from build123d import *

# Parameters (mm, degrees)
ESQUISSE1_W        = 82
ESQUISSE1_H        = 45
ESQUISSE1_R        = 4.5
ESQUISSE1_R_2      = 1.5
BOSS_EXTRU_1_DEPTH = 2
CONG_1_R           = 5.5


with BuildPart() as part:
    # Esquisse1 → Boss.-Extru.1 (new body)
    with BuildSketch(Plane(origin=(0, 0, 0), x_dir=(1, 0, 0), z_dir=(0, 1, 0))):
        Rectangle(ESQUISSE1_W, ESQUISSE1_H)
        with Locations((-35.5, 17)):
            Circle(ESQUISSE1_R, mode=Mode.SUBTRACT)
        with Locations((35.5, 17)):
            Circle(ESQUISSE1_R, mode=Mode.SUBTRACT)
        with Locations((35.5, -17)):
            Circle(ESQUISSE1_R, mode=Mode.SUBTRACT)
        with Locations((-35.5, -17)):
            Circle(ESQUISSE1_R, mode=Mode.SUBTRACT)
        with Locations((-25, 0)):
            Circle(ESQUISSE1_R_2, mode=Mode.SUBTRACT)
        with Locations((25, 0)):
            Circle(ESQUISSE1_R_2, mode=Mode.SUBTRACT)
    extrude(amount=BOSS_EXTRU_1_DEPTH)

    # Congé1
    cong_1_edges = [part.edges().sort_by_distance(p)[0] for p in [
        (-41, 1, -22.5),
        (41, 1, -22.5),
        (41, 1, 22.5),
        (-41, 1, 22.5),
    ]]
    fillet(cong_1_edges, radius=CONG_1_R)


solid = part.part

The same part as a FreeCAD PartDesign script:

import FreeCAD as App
import Part
import Sketcher

V = App.Vector
Q = App.Units.Quantity


def edges_at(feature, points):
    """Names of the edges that pass closest to the given points."""
    edges = feature.Shape.Edges
    near = lambda p: min(range(len(edges)), key=lambda i: edges[i].distToShape(Part.Vertex(*p))[0])
    return sorted({f"Edge{near(p) + 1}" for p in points})

doc = App.newDocument("Part")
body = doc.addObject("PartDesign::Body", "Body")

sketch1 = doc.addObject("Sketcher::SketchObject", "Sketch")
body.addObject(sketch1)
sketch1.AttachmentSupport = (doc.XZ_Plane, [""])
sketch1.MapMode = "FlatFace"
sketch1.addGeometry([
    Part.LineSegment(V(-41, -22.5, 0), V(-41, 22.5, 0)),
    Part.LineSegment(V(-41, 22.5, 0), V(41, 22.5, 0)),
    Part.LineSegment(V(41, 22.5, 0), V(41, -22.5, 0)),
    Part.LineSegment(V(41, -22.5, 0), V(-41, -22.5, 0)),
    Part.Circle(V(-35.5, 17, 0), V(0, 0, 1), 4.5),
    Part.Circle(V(35.5, 17, 0), V(0, 0, 1), 4.5),
    Part.Circle(V(-25, 0, 0), V(0, 0, 1), 1.5),
    Part.Circle(V(-35.5, -17, 0), V(0, 0, 1), 4.5),
    Part.Circle(V(25, 0, 0), V(0, 0, 1), 1.5),
    Part.Circle(V(35.5, -17, 0), V(0, 0, 1), 4.5),
], False)
sketch1.addConstraint([
    Sketcher.Constraint("Coincident", 0, 2, 1, 1),
    Sketcher.Constraint("Coincident", 1, 2, 2, 1),
    Sketcher.Constraint("Coincident", 2, 2, 3, 1),
    Sketcher.Constraint("Coincident", 3, 2, 0, 1),
    Sketcher.Constraint("Vertical", 0),
    Sketcher.Constraint("Horizontal", 1),
    Sketcher.Constraint("Vertical", 2),
    Sketcher.Constraint("Horizontal", 3),
    Sketcher.Constraint("Equal", 4, 5),
    Sketcher.Constraint("Equal", 5, 7),
    Sketcher.Constraint("Equal", 6, 8),
    Sketcher.Constraint("Equal", 7, 9),
    Sketcher.Constraint("Symmetric", 5, 3, 7, 3, -1, 1),
    Sketcher.Constraint("Symmetric", 6, 3, 8, 3, -1, 1),
    Sketcher.Constraint("Symmetric", 4, 3, 9, 3, -1, 1),
    Sketcher.Constraint("Symmetric", 0, 2, 2, 2, -1, 1),
    Sketcher.Constraint("Symmetric", 4, 3, 5, 3, -2),
    Sketcher.Constraint("PointOnObject", 6, 3, -1),
    Sketcher.Constraint("Diameter", 4, Q("9 mm")),
    Sketcher.Constraint("Diameter", 6, Q("3 mm")),
    Sketcher.Constraint("DistanceX", 1, 1, 1, 2, Q("82 mm")),
    Sketcher.Constraint("DistanceY", 0, 1, 0, 2, Q("45 mm")),
    Sketcher.Constraint("DistanceY", -1, 1, 4, 3, Q("17 mm")),
    Sketcher.Constraint("DistanceX", 6, 3, -1, 1, Q("25 mm")),
    Sketcher.Constraint("DistanceX", 4, 3, 5, 3, Q("71 mm")),
])
pad1 = doc.addObject("PartDesign::Pad", "Pad")
body.addObject(pad1)
pad1.Profile = sketch1
pad1.Length = 2
pad1.Reversed = True
doc.recompute()

fillet = doc.addObject("PartDesign::Fillet", "Fillet")
body.addObject(fillet)
fillet.Base = (pad1, edges_at(pad1, [
    (-41, 1, -22.5),
    (41, 1, -22.5),
    (41, 1, 22.5),
    (-41, 1, 22.5),
]))
fillet.Radius = 5.5

doc.recompute()
